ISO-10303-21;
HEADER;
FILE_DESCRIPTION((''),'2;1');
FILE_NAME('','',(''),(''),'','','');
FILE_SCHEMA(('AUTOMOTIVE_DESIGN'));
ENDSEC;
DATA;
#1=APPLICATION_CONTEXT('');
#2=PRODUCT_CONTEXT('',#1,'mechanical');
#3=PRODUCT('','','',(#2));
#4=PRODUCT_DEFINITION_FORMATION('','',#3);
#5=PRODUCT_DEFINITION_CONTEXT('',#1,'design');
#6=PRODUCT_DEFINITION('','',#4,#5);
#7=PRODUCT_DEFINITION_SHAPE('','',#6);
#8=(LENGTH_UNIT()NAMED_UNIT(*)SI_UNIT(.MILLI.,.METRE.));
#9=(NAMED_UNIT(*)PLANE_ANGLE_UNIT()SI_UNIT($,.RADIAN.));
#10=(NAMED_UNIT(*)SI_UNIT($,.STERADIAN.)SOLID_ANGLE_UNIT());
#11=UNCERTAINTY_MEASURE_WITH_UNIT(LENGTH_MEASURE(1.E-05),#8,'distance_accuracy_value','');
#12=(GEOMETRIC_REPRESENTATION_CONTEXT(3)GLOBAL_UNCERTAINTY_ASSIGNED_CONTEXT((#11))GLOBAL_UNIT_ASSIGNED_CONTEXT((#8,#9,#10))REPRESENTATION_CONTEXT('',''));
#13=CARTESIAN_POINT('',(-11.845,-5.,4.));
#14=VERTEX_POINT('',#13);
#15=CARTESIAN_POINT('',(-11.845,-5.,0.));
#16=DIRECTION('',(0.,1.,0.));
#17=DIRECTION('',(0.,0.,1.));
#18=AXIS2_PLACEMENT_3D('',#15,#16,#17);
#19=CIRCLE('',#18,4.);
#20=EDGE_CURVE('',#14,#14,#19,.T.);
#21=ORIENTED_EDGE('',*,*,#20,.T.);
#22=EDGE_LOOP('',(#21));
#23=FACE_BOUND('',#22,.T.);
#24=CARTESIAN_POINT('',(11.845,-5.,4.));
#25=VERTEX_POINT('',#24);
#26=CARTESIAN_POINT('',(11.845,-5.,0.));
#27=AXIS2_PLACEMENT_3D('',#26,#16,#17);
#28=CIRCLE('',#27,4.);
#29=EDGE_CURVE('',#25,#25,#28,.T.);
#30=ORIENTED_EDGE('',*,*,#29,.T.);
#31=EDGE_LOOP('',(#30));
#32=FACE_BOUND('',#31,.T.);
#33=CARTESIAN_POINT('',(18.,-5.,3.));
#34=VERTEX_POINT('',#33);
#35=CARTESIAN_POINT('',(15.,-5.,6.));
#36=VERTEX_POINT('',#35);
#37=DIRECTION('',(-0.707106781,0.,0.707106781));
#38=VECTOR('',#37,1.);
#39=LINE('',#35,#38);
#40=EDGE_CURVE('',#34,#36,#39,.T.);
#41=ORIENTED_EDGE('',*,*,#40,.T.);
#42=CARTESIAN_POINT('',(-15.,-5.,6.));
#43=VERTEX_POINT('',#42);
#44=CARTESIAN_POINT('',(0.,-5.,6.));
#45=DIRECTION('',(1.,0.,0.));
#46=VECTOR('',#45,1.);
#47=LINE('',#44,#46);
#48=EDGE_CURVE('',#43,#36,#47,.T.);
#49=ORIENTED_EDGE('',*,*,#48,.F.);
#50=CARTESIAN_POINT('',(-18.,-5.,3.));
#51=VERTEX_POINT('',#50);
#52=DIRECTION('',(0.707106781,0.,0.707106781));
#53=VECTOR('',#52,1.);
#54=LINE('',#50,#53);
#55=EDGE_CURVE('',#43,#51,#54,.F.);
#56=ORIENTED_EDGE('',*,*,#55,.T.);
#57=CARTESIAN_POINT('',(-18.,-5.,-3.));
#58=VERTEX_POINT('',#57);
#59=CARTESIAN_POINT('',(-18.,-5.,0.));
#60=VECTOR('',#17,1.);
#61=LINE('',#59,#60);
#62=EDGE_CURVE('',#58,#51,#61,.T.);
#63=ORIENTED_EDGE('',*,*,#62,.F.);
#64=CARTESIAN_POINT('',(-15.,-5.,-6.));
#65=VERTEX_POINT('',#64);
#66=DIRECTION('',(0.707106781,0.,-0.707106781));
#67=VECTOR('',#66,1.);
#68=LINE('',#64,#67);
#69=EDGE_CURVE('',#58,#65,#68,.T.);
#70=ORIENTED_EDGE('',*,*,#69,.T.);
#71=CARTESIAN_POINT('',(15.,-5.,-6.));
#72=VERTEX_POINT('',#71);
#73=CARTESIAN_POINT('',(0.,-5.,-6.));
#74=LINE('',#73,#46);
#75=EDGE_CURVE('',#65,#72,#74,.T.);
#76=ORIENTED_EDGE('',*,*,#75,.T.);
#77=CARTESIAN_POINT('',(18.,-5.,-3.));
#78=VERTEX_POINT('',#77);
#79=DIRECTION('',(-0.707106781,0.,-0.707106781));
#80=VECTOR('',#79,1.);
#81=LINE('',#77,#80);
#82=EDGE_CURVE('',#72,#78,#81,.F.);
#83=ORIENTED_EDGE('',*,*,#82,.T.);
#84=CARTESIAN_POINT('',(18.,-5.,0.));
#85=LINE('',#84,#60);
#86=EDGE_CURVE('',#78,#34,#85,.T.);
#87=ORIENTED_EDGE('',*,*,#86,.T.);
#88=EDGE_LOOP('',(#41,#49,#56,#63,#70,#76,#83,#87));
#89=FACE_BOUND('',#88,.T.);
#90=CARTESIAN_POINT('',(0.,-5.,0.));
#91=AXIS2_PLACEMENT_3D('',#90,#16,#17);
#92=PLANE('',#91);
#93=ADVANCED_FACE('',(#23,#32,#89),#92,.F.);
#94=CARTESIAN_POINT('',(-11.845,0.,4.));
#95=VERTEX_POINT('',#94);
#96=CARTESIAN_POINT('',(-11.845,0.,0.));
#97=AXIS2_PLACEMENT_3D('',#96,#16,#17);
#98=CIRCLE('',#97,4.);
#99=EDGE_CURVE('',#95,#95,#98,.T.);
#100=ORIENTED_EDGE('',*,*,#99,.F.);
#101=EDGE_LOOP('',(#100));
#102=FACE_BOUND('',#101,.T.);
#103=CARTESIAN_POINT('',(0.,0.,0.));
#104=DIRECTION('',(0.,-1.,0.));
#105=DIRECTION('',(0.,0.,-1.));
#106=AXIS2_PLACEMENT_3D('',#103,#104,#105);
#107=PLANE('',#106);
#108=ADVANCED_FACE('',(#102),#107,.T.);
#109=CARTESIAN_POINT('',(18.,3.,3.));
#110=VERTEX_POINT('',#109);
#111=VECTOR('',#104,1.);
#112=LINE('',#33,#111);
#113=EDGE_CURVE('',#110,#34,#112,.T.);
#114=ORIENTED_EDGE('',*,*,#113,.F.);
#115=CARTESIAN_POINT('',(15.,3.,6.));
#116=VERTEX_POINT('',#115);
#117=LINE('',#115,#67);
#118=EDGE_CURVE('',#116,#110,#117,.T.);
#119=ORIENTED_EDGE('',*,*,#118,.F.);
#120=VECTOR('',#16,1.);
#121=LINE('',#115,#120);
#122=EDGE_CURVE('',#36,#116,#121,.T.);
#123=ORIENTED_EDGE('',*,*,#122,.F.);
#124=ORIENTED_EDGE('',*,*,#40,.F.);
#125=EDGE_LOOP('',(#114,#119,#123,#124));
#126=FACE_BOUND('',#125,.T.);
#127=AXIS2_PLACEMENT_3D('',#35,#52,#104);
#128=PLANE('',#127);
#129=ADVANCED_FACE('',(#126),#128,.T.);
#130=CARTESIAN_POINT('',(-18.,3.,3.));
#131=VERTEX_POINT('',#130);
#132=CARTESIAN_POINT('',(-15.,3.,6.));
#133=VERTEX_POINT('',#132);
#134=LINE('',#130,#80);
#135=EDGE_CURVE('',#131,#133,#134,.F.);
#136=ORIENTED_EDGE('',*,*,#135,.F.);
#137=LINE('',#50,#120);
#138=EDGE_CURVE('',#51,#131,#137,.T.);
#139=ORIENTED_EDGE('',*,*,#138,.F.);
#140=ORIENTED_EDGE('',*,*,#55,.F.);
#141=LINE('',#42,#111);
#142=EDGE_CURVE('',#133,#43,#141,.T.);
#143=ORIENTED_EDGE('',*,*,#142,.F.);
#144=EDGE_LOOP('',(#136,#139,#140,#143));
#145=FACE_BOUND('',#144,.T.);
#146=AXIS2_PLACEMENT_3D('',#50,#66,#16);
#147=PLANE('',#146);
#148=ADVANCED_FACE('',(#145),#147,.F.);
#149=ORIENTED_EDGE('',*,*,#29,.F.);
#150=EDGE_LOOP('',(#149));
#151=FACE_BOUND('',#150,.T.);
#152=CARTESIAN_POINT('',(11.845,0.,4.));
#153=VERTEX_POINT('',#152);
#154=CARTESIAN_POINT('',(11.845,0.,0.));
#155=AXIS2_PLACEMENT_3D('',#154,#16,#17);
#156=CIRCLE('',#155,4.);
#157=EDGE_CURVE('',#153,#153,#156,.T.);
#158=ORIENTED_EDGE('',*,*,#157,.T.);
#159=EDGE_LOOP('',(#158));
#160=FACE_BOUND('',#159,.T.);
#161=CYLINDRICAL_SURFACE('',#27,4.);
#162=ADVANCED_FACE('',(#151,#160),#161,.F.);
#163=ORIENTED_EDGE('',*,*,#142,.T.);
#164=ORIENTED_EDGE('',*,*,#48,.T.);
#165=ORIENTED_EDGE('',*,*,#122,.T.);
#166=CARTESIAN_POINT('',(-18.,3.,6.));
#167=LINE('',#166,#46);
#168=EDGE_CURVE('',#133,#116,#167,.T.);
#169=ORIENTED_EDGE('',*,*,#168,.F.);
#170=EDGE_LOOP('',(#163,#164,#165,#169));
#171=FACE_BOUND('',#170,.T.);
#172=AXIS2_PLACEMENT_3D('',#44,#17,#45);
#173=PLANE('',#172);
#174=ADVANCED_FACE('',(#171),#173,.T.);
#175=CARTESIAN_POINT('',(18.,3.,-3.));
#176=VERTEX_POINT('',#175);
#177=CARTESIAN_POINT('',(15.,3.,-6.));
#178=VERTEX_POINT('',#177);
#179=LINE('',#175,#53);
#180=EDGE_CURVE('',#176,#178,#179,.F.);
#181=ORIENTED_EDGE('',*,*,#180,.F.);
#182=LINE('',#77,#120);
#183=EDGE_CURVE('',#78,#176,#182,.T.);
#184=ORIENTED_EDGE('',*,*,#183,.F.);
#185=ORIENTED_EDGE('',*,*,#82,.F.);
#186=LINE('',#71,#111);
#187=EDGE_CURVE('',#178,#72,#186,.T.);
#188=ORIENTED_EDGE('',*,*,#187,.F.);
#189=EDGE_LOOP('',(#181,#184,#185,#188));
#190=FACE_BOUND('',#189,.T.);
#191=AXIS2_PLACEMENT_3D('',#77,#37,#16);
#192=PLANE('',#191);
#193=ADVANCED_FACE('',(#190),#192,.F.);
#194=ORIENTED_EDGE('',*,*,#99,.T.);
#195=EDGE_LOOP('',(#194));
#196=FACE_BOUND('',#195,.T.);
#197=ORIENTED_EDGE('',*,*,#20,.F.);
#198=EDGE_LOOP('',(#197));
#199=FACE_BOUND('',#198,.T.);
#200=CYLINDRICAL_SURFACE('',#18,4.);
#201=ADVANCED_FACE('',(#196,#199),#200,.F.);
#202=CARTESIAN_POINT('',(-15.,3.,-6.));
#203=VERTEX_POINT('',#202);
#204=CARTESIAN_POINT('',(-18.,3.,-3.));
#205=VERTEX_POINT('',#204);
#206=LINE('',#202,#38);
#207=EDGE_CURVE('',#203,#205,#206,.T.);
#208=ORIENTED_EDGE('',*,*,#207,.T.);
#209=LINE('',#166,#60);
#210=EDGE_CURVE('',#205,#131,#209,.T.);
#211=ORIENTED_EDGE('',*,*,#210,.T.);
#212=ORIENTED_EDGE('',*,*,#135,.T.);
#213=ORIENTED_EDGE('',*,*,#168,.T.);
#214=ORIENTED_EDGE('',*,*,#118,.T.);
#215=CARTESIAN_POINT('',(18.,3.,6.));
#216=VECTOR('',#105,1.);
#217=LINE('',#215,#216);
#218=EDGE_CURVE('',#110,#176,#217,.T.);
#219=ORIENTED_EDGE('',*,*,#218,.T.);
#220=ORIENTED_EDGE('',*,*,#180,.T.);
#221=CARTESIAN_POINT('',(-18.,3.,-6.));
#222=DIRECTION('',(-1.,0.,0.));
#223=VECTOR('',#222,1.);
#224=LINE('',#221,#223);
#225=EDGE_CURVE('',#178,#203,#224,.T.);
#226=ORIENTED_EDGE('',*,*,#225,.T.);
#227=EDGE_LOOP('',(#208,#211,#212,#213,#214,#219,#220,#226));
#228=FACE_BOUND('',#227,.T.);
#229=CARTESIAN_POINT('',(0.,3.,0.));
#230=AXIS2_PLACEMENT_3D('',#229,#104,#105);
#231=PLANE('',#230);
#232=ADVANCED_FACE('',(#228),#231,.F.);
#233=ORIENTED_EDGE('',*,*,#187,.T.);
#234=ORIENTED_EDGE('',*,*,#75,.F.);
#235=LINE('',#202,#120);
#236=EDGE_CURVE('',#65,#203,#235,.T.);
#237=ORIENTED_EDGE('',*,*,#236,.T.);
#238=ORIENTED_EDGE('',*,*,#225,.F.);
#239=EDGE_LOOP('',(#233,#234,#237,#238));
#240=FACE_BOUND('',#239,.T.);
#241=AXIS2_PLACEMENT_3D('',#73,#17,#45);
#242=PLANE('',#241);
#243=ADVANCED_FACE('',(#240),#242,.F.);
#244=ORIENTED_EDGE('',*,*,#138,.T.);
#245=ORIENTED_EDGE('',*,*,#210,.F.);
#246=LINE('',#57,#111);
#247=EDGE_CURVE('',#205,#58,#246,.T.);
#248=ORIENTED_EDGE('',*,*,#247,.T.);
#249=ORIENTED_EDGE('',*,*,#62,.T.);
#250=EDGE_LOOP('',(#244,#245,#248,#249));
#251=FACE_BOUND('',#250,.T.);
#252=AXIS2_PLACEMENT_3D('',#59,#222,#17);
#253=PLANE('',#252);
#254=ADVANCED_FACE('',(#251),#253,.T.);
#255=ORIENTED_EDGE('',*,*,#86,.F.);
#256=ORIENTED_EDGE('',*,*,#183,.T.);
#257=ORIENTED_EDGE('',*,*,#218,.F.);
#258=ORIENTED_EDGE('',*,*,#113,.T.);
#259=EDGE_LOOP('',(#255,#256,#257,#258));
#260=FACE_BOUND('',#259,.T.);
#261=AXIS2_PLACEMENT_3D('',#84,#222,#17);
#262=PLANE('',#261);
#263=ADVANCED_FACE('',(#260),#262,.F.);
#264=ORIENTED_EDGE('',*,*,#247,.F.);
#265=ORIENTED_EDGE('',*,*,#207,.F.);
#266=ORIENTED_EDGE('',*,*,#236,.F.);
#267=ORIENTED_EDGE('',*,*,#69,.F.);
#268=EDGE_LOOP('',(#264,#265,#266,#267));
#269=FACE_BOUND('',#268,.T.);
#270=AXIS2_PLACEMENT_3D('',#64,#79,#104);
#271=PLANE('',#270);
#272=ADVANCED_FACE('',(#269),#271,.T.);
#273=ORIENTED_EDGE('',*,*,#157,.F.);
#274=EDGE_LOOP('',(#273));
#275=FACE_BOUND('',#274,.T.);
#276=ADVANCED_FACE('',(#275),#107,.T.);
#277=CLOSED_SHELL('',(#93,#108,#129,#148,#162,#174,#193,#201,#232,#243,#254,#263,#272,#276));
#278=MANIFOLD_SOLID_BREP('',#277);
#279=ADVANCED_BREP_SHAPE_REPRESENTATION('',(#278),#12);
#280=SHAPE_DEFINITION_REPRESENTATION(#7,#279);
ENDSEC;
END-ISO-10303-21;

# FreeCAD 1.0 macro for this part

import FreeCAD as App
import Part
import Sketcher
Q = App.Units.Quantity


def edges_at(feature, points):
    """Names of the edges that pass closest to the given points."""
    edges = feature.Shape.Edges
    near = lambda p: min(range(len(edges)), key=lambda i: edges[i].distToShape(Part.Vertex(*p))[0])
    return sorted({f"Edge{near(p) + 1}" for p in points})

doc = App.newDocument("Part")
body = doc.addObject("PartDesign::Body", "Body")

sketch1 = body.newObject("Sketcher::SketchObject", "Sketch")
sketch1.AttachmentSupport = (doc.getObject("XZ_Plane"), [""])
sketch1.MapMode = "FlatFace"
sketch1.addGeometry([
    Part.LineSegment(App.Vector(-18, -6, 0), App.Vector(-18, 6, 0)),
    Part.LineSegment(App.Vector(-18, 6, 0), App.Vector(18, 6, 0)),
    Part.LineSegment(App.Vector(18, 6, 0), App.Vector(18, -6, 0)),
    Part.LineSegment(App.Vector(18, -6, 0), App.Vector(-18, -6, 0)),
    Part.Circle(App.Vector(-11.8, 0, 0), App.Vector(0, 0, 1), 4),
    Part.Circle(App.Vector(11.8, 0, 0), App.Vector(0, 0, 1), 4),
], False)
sketch1.addConstraint([
    Sketcher.Constraint("Coincident", 0, 2, 1, 1),
    Sketcher.Constraint("Coincident", 1, 2, 2, 1),
    Sketcher.Constraint("Coincident", 2, 2, 3, 1),
    Sketcher.Constraint("Coincident", 3, 2, 0, 1),
    Sketcher.Constraint("Vertical", 0),
    Sketcher.Constraint("Horizontal", 1),
    Sketcher.Constraint("Vertical", 2),
    Sketcher.Constraint("Horizontal", 3),
    Sketcher.Constraint("Equal", 4, 5),
    Sketcher.Constraint("Symmetric", 4, 3, 5, 3, -1, 1),
    Sketcher.Constraint("Symmetric", 0, 2, 2, 2, -1, 1),
    Sketcher.Constraint("PointOnObject", 4, 3, -1),
    Sketcher.Constraint("Diameter", 4, Q("8 mm")),
    Sketcher.Constraint("DistanceX", 1, 1, 1, 2, Q("36 mm")),
    Sketcher.Constraint("DistanceY", 0, 1, 0, 2, Q("12 mm")),
    Sketcher.Constraint("DistanceX", 4, 3, 5, 3, Q("23.69 mm")),
])
pad1 = body.newObject("PartDesign::Pad", "Pad")
pad1.Profile = sketch1
pad1.Length = 5

sketch2 = body.newObject("Sketcher::SketchObject", "Sketch001")
sketch2.AttachmentSupport = (doc.getObject("XZ_Plane"), [""])
sketch2.MapMode = "FlatFace"
sketch2.addGeometry([
    Part.LineSegment(App.Vector(-18, -6, 0), App.Vector(-18, 6, 0)),
    Part.LineSegment(App.Vector(-18, 6, 0), App.Vector(18, 6, 0)),
    Part.LineSegment(App.Vector(18, 6, 0), App.Vector(18, -6, 0)),
    Part.LineSegment(App.Vector(18, -6, 0), App.Vector(-18, -6, 0)),
], False)
sketch2.addConstraint([
    Sketcher.Constraint("Coincident", 0, 2, 1, 1),
    Sketcher.Constraint("Coincident", 1, 2, 2, 1),
    Sketcher.Constraint("Coincident", 2, 2, 3, 1),
    Sketcher.Constraint("Coincident", 3, 2, 0, 1),
    Sketcher.Constraint("Vertical", 0),
    Sketcher.Constraint("Horizontal", 1),
    Sketcher.Constraint("Vertical", 2),
    Sketcher.Constraint("Horizontal", 3),
    Sketcher.Constraint("Symmetric", 0, 2, 2, 2, -1, 1),
    Sketcher.Constraint("DistanceX", 1, 1, 1, 2, Q("36 mm")),
    Sketcher.Constraint("DistanceY", 0, 1, 0, 2, Q("12 mm")),
])
pad2 = body.newObject("PartDesign::Pad", "Pad001")
pad2.Profile = sketch2
pad2.Length = 3
pad2.Reversed = True
doc.recompute()

chamfer = body.newObject("PartDesign::Chamfer", "Chamfer")
chamfer.Base = (pad2, edges_at(pad2, [
    (18, -1, 6),
    (-18, -1, 6),
    (-18, -1, -6),
    (18, -1, -6),
]))
chamfer.Size = 3

doc.recompute()
